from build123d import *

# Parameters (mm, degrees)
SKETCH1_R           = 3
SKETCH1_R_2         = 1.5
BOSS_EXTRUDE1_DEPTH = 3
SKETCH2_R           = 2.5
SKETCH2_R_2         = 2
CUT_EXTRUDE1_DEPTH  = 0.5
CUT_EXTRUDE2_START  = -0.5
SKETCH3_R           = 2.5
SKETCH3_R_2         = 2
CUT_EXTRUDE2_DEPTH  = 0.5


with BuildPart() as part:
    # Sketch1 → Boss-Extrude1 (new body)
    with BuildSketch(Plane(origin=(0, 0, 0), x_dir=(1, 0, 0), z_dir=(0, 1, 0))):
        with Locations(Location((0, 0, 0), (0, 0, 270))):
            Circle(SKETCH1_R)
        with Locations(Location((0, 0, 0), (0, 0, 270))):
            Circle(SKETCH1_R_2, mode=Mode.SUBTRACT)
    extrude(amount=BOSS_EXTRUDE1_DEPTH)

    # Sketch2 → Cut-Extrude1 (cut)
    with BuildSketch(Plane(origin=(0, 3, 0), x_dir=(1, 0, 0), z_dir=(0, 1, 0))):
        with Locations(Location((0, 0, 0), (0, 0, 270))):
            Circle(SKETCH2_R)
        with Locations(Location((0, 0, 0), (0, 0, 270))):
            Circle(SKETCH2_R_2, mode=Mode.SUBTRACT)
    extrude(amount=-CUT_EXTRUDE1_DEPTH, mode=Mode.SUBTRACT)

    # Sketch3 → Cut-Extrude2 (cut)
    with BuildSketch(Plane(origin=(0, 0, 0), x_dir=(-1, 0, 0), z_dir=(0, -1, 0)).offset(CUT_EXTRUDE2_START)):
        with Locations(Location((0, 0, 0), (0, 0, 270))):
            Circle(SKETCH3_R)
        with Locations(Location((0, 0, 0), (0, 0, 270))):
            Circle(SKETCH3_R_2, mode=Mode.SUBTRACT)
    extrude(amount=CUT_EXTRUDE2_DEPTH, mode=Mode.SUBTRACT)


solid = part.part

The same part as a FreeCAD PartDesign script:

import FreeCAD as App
import Part
import Sketcher
from FreeCAD import Vector
Q = App.Units.Quantity

doc = App.newDocument("Part")
body = doc.addObject("PartDesign::Body", "Body")

sketch1 = doc.addObject("Sketcher::SketchObject", "Sketch")
body.addObject(sketch1)
sketch1.AttachmentSupport = (doc.XZ_Plane, [""])
sketch1.MapMode = "FlatFace"
sketch1.addGeometry([
    Part.Circle(Vector(0, 0, 0), Vector(0, 0, 1), 3),
    Part.Circle(Vector(0, 0, 0), Vector(0, 0, 1), 1.5),
], False)
sketch1.addConstraint([
    Sketcher.Constraint("Coincident", 0, 3, -1, 1),
    Sketcher.Constraint("Coincident", 1, 3, -1, 1),
    Sketcher.Constraint("Diameter", 0, Q("6 mm")),
    Sketcher.Constraint("Diameter", 1, Q("3 mm")),
])
pad1 = doc.addObject("PartDesign::Pad", "Pad")
body.addObject(pad1)
pad1.Profile = sketch1
pad1.Length = 3
pad1.Reversed = True

sketch2 = doc.addObject("Sketcher::SketchObject", "Sketch001")
body.addObject(sketch2)
sketch2.AttachmentSupport = (doc.XZ_Plane, [""])
sketch2.MapMode = "FlatFace"
sketch2.AttachmentOffset = App.Placement(Vector(0, 0, -3), App.Rotation())
sketch2.addGeometry([
    Part.Circle(Vector(0, 0, 0), Vector(0, 0, 1), 2.5),
    Part.Circle(Vector(0, 0, 0), Vector(0, 0, 1), 2),
], False)
sketch2.addConstraint([
    Sketcher.Constraint("Coincident", 0, 3, -1, 1),
    Sketcher.Constraint("Coincident", 1, 3, -1, 1),
    Sketcher.Constraint("Diameter", 0, Q("5 mm")),
    Sketcher.Constraint("Diameter", 1, Q("4 mm")),
])
pocket1 = doc.addObject("PartDesign::Pocket", "Pocket")
body.addObject(pocket1)
pocket1.Profile = sketch2
pocket1.Length = 0.5
pocket1.Reversed = True

sketch3 = doc.addObject("Sketcher::SketchObject", "Sketch002")
body.addObject(sketch3)
sketch3.AttachmentSupport = (doc.XZ_Plane, [""])
sketch3.MapMode = "FlatFace"
sketch3.AttachmentOffset = App.Placement(Vector(0, 0, -0.5), App.Rotation())
sketch3.addGeometry([
    Part.Circle(Vector(0, 0, 0), Vector(0, 0, 1), 2.5),
    Part.Circle(Vector(0, 0, 0), Vector(0, 0, 1), 2),
], False)
sketch3.addConstraint([
    Sketcher.Constraint("Coincident", 0, 3, -1, 1),
    Sketcher.Constraint("Coincident", 1, 3, -1, 1),
    Sketcher.Constraint("Diameter", 0, Q("5 mm")),
    Sketcher.Constraint("Diameter", 1, Q("4 mm")),
])
pocket2 = doc.addObject("PartDesign::Pocket", "Pocket001")
body.addObject(pocket2)
pocket2.Profile = sketch3
pocket2.Length = 0.5
pocket2.Reversed = True

doc.recompute()
